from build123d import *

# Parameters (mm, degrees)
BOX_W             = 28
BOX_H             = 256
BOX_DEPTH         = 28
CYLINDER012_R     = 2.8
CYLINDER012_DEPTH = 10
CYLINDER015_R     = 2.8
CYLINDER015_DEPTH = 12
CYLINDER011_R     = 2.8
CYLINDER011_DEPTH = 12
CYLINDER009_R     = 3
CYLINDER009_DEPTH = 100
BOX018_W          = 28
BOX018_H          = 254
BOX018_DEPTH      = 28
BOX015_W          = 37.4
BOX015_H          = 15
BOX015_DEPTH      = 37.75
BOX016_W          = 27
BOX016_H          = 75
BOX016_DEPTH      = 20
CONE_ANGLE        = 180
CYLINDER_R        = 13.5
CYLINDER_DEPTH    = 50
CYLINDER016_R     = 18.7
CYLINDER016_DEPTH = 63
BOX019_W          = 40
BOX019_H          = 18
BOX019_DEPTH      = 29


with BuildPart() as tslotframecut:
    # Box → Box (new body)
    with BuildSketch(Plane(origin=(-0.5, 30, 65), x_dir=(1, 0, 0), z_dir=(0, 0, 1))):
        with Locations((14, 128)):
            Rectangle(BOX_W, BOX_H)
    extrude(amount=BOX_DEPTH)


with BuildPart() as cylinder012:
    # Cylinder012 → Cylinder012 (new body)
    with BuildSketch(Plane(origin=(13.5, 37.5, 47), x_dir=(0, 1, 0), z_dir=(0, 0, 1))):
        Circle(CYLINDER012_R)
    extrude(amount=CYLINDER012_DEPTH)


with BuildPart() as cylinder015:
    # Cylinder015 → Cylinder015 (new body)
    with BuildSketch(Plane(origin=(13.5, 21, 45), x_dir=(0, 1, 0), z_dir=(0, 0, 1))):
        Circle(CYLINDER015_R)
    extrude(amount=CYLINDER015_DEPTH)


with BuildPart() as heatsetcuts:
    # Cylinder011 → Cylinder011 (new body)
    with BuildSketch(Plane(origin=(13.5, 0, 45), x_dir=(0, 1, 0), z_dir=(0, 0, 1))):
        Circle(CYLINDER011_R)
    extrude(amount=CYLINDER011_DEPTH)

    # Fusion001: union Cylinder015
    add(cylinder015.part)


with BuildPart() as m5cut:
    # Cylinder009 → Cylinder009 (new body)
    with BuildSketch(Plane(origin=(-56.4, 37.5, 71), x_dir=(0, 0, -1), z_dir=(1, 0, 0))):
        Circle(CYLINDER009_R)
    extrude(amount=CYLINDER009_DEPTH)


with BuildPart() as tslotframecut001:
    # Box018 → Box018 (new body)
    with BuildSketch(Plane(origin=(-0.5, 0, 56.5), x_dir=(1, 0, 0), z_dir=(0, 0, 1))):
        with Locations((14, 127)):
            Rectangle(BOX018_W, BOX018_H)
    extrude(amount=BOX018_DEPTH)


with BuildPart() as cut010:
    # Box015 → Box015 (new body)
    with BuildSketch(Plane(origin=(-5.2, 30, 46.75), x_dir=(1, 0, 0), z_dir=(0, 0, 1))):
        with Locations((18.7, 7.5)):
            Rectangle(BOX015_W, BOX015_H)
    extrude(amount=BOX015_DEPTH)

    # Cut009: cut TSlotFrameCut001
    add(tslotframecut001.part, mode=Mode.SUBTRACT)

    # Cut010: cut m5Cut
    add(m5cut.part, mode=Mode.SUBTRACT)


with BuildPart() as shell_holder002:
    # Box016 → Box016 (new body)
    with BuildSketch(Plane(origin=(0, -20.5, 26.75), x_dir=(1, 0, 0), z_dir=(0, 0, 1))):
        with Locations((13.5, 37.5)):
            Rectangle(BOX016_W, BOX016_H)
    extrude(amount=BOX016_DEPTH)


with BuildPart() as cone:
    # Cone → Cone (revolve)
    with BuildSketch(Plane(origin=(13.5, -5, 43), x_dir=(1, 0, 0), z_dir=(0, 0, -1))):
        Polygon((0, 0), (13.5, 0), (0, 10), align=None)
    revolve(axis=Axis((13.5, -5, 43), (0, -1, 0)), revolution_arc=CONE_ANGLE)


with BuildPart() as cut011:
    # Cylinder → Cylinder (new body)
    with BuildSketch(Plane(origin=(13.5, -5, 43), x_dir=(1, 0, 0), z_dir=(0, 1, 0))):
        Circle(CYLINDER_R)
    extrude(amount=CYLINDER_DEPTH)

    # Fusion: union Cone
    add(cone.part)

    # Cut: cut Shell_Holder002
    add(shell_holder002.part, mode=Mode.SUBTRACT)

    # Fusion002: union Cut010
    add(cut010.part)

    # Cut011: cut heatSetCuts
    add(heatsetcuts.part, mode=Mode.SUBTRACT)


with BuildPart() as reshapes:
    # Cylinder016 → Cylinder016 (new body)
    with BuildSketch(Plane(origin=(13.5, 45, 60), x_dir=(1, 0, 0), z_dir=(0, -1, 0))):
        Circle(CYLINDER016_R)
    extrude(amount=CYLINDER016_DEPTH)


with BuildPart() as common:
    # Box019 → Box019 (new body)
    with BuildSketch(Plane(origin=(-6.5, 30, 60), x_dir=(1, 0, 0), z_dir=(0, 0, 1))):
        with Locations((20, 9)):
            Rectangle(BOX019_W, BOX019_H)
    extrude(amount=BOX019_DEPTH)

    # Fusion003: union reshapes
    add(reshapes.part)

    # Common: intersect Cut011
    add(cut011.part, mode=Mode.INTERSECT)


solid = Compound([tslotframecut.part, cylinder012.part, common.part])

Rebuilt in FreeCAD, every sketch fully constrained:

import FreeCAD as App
import Part
import Sketcher

V = App.Vector

doc = App.newDocument("Part")
params = doc.addObject("Spreadsheet::Sheet", "Params")
for row, (alias, value) in enumerate([
    ("sketch1_width", "28 mm"),
    ("sketch1_height", "256 mm"),
    ("pad1_length", "28 mm"),
    ("sketch2_diameter", "5.6 mm"),
    ("pad2_length", "10 mm"),
    ("sketch3_diameter", "5.6 mm"),
    ("pad3_length", "12 mm"),
    ("sketch4_diameter", "5.6 mm"),
    ("pad4_length", "12 mm"),
    ("sketch5_diameter", "6 mm"),
    ("pad5_length", "100 mm"),
    ("sketch6_width", "28 mm"),
    ("sketch6_height", "254 mm"),
    ("pad6_length", "28 mm"),
    ("sketch7_height", "15 mm"),
    ("sketch7_width", "37.4 mm"),
    ("pad7_length", "37.75 mm"),
    ("sketch8_width", "27 mm"),
    ("sketch8_height", "75 mm"),
    ("pad8_length", "20 mm"),
    ("sketch9_height", "10 mm"),
    ("sketch9_width", "13.5 mm"),
    ("revolution_angle", "180 deg"),
    ("sketch10_diameter", "27 mm"),
    ("pad9_length", "50 mm"),
    ("sketch11_diameter", "37.4 mm"),
    ("pad10_length", "63 mm"),
    ("sketch12_width", "40 mm"),
    ("sketch12_height", "18 mm"),
    ("pad11_length", "29 mm"),
], start=1):
    params.set(f"A{row}", alias)
    params.set(f"B{row}", "=" + value)
    params.setAlias(f"B{row}", alias)

body = doc.addObject("PartDesign::Body", "Body")

# Sketch on XY plane
sketch1 = body.newObject("Sketcher::SketchObject", "Sketch")
sketch1.AttachmentSupport = (doc.getObject("XY_Plane"), [""])
sketch1.MapMode = "FlatFace"
sketch1.AttachmentOffset = App.Placement(V(0, 0, 65), App.Rotation())
sketch1.addGeometry(Part.LineSegment(V(-0.5, 286, 0), V(-0.5, 30, 0)), False)
sketch1.addGeometry(Part.LineSegment(V(-0.5, 30, 0), V(27.5, 30, 0)), False)
sketch1.addGeometry(Part.LineSegment(V(27.5, 30, 0), V(27.5, 286, 0)), False)
sketch1.addGeometry(Part.LineSegment(V(27.5, 286, 0), V(-0.5, 286, 0)), False)
sketch1.addConstraint(Sketcher.Constraint("Coincident", 0, 2, 1, 1))
sketch1.addConstraint(Sketcher.Constraint("Coincident", 1, 2, 2, 1))
sketch1.addConstraint(Sketcher.Constraint("Coincident", 2, 2, 3, 1))
sketch1.addConstraint(Sketcher.Constraint("Coincident", 3, 2, 0, 1))
sketch1.addConstraint(Sketcher.Constraint("Vertical", 0))
sketch1.addConstraint(Sketcher.Constraint("Horizontal", 1))
sketch1.addConstraint(Sketcher.Constraint("Vertical", 2))
sketch1.addConstraint(Sketcher.Constraint("Horizontal", 3))
sketch1.addConstraint(Sketcher.Constraint("DistanceX", 1, 1, 1, 2, 28.0))
sketch1.addConstraint(Sketcher.Constraint("DistanceY", 0, 2, 0, 1, 256.0))
sketch1.addConstraint(Sketcher.Constraint("DistanceY", -1, 1, 0, 2, 30.0))
sketch1.addConstraint(Sketcher.Constraint("DistanceX", 0, 2, -1, 1, 0.5))
sketch1.setExpression("Constraints[8]", "Params.sketch1_width")
sketch1.setExpression("Constraints[9]", "Params.sketch1_height")
pad1 = body.newObject("PartDesign::Pad", "Pad")
pad1.Profile = sketch1
pad1.setExpression("Length", "Params.pad1_length")
body2 = doc.addObject("PartDesign::Body", "Body001")

# Sketch on XY plane
sketch2 = body2.newObject("Sketcher::SketchObject", "Sketch001")
sketch2.AttachmentSupport = (doc.getObject("XY_Plane001"), [""])
sketch2.MapMode = "FlatFace"
sketch2.AttachmentOffset = App.Placement(V(0, 0, 47), App.Rotation())
sketch2.addGeometry(Part.Circle(V(13.5, 37.5, 0), V(0, 0, 1), 2.8), False)
sketch2.addConstraint(Sketcher.Constraint("Diameter", 0, 5.6))
sketch2.addConstraint(Sketcher.Constraint("DistanceX", -1, 1, 0, 3, 13.5))
sketch2.addConstraint(Sketcher.Constraint("DistanceY", -1, 1, 0, 3, 37.5))
sketch2.setExpression("Constraints[0]", "Params.sketch2_diameter")
pad2 = body2.newObject("PartDesign::Pad", "Pad001")
pad2.Profile = sketch2
pad2.setExpression("Length", "Params.pad2_length")
body3 = doc.addObject("PartDesign::Body", "Body002")

# Sketch on XY plane
sketch3 = body3.newObject("Sketcher::SketchObject", "Sketch002")
sketch3.AttachmentSupport = (doc.getObject("XY_Plane002"), [""])
sketch3.MapMode = "FlatFace"
sketch3.AttachmentOffset = App.Placement(V(0, 0, 45), App.Rotation())
sketch3.addGeometry(Part.Circle(V(13.5, 21, 0), V(0, 0, 1), 2.8), False)
sketch3.addConstraint(Sketcher.Constraint("Diameter", 0, 5.6))
sketch3.addConstraint(Sketcher.Constraint("DistanceY", -1, 1, 0, 3, 21.0))
sketch3.addConstraint(Sketcher.Constraint("DistanceX", -1, 1, 0, 3, 13.5))
sketch3.setExpression("Constraints[0]", "Params.sketch3_diameter")
pad3 = body3.newObject("PartDesign::Pad", "Pad002")
pad3.Profile = sketch3
pad3.setExpression("Length", "Params.pad3_length")
body4 = doc.addObject("PartDesign::Body", "Body003")
body4.AllowCompound = True

# Sketch on XY plane
sketch4 = body4.newObject("Sketcher::SketchObject", "Sketch003")
sketch4.AttachmentSupport = (doc.getObject("XY_Plane003"), [""])
sketch4.MapMode = "FlatFace"
sketch4.AttachmentOffset = App.Placement(V(0, 0, 45), App.Rotation())
sketch4.addGeometry(Part.Circle(V(13.5, 0, 0), V(0, 0, 1), 2.8), False)
sketch4.addConstraint(Sketcher.Constraint("PointOnObject", 0, 3, -1))
sketch4.addConstraint(Sketcher.Constraint("Diameter", 0, 5.6))
sketch4.addConstraint(Sketcher.Constraint("DistanceX", -1, 1, 0, 3, 13.5))
sketch4.setExpression("Constraints[1]", "Params.sketch4_diameter")
pad4 = body4.newObject("PartDesign::Pad", "Pad003")
pad4.Profile = sketch4
pad4.setExpression("Length", "Params.pad4_length")
doc.recompute()

boolean = body4.newObject("PartDesign::Boolean", "Boolean")
boolean.Type = "Fuse"
boolean.addObjects([body3])
body5 = doc.addObject("PartDesign::Body", "Body004")

# Sketch on YZ plane
sketch5 = body5.newObject("Sketcher::SketchObject", "Sketch004")
sketch5.AttachmentSupport = (doc.getObject("YZ_Plane004"), [""])
sketch5.MapMode = "FlatFace"
sketch5.AttachmentOffset = App.Placement(V(0, 0, -56.4), App.Rotation())
sketch5.addGeometry(Part.Circle(V(37.5, 71, 0), V(0, 0, 1), 3), False)
sketch5.addConstraint(Sketcher.Constraint("Diameter", 0, 6.0))
sketch5.addConstraint(Sketcher.Constraint("DistanceY", -1, 1, 0, 3, 71.0))
sketch5.addConstraint(Sketcher.Constraint("DistanceX", -1, 1, 0, 3, 37.5))
sketch5.setExpression("Constraints[0]", "Params.sketch5_diameter")
pad5 = body5.newObject("PartDesign::Pad", "Pad004")
pad5.Profile = sketch5
pad5.setExpression("Length", "Params.pad5_length")
body6 = doc.addObject("PartDesign::Body", "Body005")

# Sketch on XY plane
sketch6 = body6.newObject("Sketcher::SketchObject", "Sketch005")
sketch6.AttachmentSupport = (doc.getObject("XY_Plane005"), [""])
sketch6.MapMode = "FlatFace"
sketch6.AttachmentOffset = App.Placement(V(0, 0, 56.5), App.Rotation())
sketch6.addGeometry(Part.LineSegment(V(-0.5, 254, 0), V(-0.5, 0, 0)), False)
sketch6.addGeometry(Part.LineSegment(V(-0.5, 0, 0), V(27.5, 0, 0)), False)
sketch6.addGeometry(Part.LineSegment(V(27.5, 0, 0), V(27.5, 254, 0)), False)
sketch6.addGeometry(Part.LineSegment(V(27.5, 254, 0), V(-0.5, 254, 0)), False)
sketch6.addConstraint(Sketcher.Constraint("Coincident", 0, 2, 1, 1))
sketch6.addConstraint(Sketcher.Constraint("Coincident", 1, 2, 2, 1))
sketch6.addConstraint(Sketcher.Constraint("Coincident", 2, 2, 3, 1))
sketch6.addConstraint(Sketcher.Constraint("Coincident", 3, 2, 0, 1))
sketch6.addConstraint(Sketcher.Constraint("Vertical", 0))
sketch6.addConstraint(Sketcher.Constraint("Horizontal", 1))
sketch6.addConstraint(Sketcher.Constraint("Vertical", 2))
sketch6.addConstraint(Sketcher.Constraint("Horizontal", 3))
sketch6.addConstraint(Sketcher.Constraint("PointOnObject", 0, 2, -1))
sketch6.addConstraint(Sketcher.Constraint("DistanceX", 1, 1, 1, 2, 28.0))
sketch6.addConstraint(Sketcher.Constraint("DistanceY", 0, 2, 0, 1, 254.0))
sketch6.addConstraint(Sketcher.Constraint("DistanceX", 0, 2, -1, 1, 0.5))
sketch6.setExpression("Constraints[9]", "Params.sketch6_width")
sketch6.setExpression("Constraints[10]", "Params.sketch6_height")
pad6 = body6.newObject("PartDesign::Pad", "Pad005")
pad6.Profile = sketch6
pad6.setExpression("Length", "Params.pad6_length")
body7 = doc.addObject("PartDesign::Body", "Body006")

# Sketch on XY plane
sketch7 = body7.newObject("Sketcher::SketchObject", "Sketch006")
sketch7.AttachmentSupport = (doc.getObject("XY_Plane006"), [""])
sketch7.MapMode = "FlatFace"
sketch7.AttachmentOffset = App.Placement(V(0, 0, 46.75), App.Rotation())
sketch7.addGeometry(Part.LineSegment(V(-5.2, 45, 0), V(-5.2, 30, 0)), False)
sketch7.addGeometry(Part.LineSegment(V(-5.2, 30, 0), V(32.2, 30, 0)), False)
sketch7.addGeometry(Part.LineSegment(V(32.2, 30, 0), V(32.2, 45, 0)), False)
sketch7.addGeometry(Part.LineSegment(V(32.2, 45, 0), V(-5.2, 45, 0)), False)
sketch7.addConstraint(Sketcher.Constraint("Coincident", 0, 2, 1, 1))
sketch7.addConstraint(Sketcher.Constraint("Coincident", 1, 2, 2, 1))
sketch7.addConstraint(Sketcher.Constraint("Coincident", 2, 2, 3, 1))
sketch7.addConstraint(Sketcher.Constraint("Coincident", 3, 2, 0, 1))
sketch7.addConstraint(Sketcher.Constraint("Vertical", 0))
sketch7.addConstraint(Sketcher.Constraint("Horizontal", 1))
sketch7.addConstraint(Sketcher.Constraint("Vertical", 2))
sketch7.addConstraint(Sketcher.Constraint("Horizontal", 3))
sketch7.addConstraint(Sketcher.Constraint("DistanceY", 0, 2, 0, 1, 15.0))
sketch7.addConstraint(Sketcher.Constraint("DistanceX", 1, 1, 1, 2, 37.4))
sketch7.addConstraint(Sketcher.Constraint("DistanceY", -1, 1, 0, 2, 30.0))
sketch7.addConstraint(Sketcher.Constraint("DistanceX", 0, 2, -1, 1, 5.2))
sketch7.setExpression("Constraints[8]", "Params.sketch7_height")
sketch7.setExpression("Constraints[9]", "Params.sketch7_width")
pad7 = body7.newObject("PartDesign::Pad", "Pad006")
pad7.Profile = sketch7
pad7.setExpression("Length", "Params.pad7_length")
doc.recompute()

boolean2 = body7.newObject("PartDesign::Boolean", "Boolean001")
boolean2.Type = "Cut"
boolean2.addObjects([body6])
doc.recompute()

boolean3 = body7.newObject("PartDesign::Boolean", "Boolean002")
boolean3.Type = "Cut"
boolean3.addObjects([body5])
body8 = doc.addObject("PartDesign::Body", "Body007")

# Sketch on XY plane
sketch8 = body8.newObject("Sketcher::SketchObject", "Sketch007")
sketch8.AttachmentSupport = (doc.getObject("XY_Plane007"), [""])
sketch8.MapMode = "FlatFace"
sketch8.AttachmentOffset = App.Placement(V(0, 0, 26.75), App.Rotation())
sketch8.addGeometry(Part.LineSegment(V(0, 54.5, 0), V(0, -20.5, 0)), False)
sketch8.addGeometry(Part.LineSegment(V(0, -20.5, 0), V(27, -20.5, 0)), False)
sketch8.addGeometry(Part.LineSegment(V(27, -20.5, 0), V(27, 54.5, 0)), False)
sketch8.addGeometry(Part.LineSegment(V(27, 54.5, 0), V(0, 54.5, 0)), False)
sketch8.addConstraint(Sketcher.Constraint("Coincident", 0, 2, 1, 1))
sketch8.addConstraint(Sketcher.Constraint("Coincident", 1, 2, 2, 1))
sketch8.addConstraint(Sketcher.Constraint("Coincident", 2, 2, 3, 1))
sketch8.addConstraint(Sketcher.Constraint("Coincident", 3, 2, 0, 1))
sketch8.addConstraint(Sketcher.Constraint("Vertical", 0))
sketch8.addConstraint(Sketcher.Constraint("Horizontal", 1))
sketch8.addConstraint(Sketcher.Constraint("Vertical", 2))
sketch8.addConstraint(Sketcher.Constraint("Horizontal", 3))
sketch8.addConstraint(Sketcher.Constraint("PointOnObject", 0, 2, -2))
sketch8.addConstraint(Sketcher.Constraint("DistanceX", 1, 1, 1, 2, 27.0))
sketch8.addConstraint(Sketcher.Constraint("DistanceY", 0, 2, 0, 1, 75.0))
sketch8.addConstraint(Sketcher.Constraint("DistanceY", 0, 2, -1, 1, 20.5))
sketch8.setExpression("Constraints[9]", "Params.sketch8_width")
sketch8.setExpression("Constraints[10]", "Params.sketch8_height")
pad8 = body8.newObject("PartDesign::Pad", "Pad007")
pad8.Profile = sketch8
pad8.setExpression("Length", "Params.pad8_length")
body9 = doc.addObject("PartDesign::Body", "Body008")

# Sketch on XY plane
sketch9 = body9.newObject("Sketcher::SketchObject", "Sketch008")
sketch9.AttachmentSupport = (doc.getObject("XY_Plane008"), [""])
sketch9.MapMode = "FlatFace"
sketch9.AttachmentOffset = App.Placement(V(0, 0, 43), App.Rotation())
sketch9.addGeometry(Part.LineSegment(V(13.5, -5, 0), V(27, -5, 0)), False)
sketch9.addGeometry(Part.LineSegment(V(27, -5, 0), V(13.5, -15, 0)), False)
sketch9.addGeometry(Part.LineSegment(V(13.5, -15, 0), V(13.5, -5, 0)), False)
sketch9.addGeometry(Part.LineSegment(V(13.5, -5, 0), V(13.5, -15, 0)), True)  # axis
sketch9.addConstraint(Sketcher.Constraint("Coincident", 0, 2, 1, 1))
sketch9.addConstraint(Sketcher.Constraint("Coincident", 1, 2, 2, 1))
sketch9.addConstraint(Sketcher.Constraint("Coincident", 2, 2, 0, 1))
sketch9.addConstraint(Sketcher.Constraint("Horizontal", 0))
sketch9.addConstraint(Sketcher.Constraint("Vertical", 2))
sketch9.addConstraint(Sketcher.Constraint("Vertical", 3))
sketch9.addConstraint(Sketcher.Constraint("Coincident", 3, 1, 2, 2))
sketch9.addConstraint(Sketcher.Constraint("Equal", 2, 3))
sketch9.addConstraint(Sketcher.Constraint("DistanceY", 2, 1, 2, 2, 10.0))
sketch9.addConstraint(Sketcher.Constraint("DistanceX", 0, 1, 0, 2, 13.5))
sketch9.addConstraint(Sketcher.Constraint("DistanceX", -1, 1, 0, 2, 27.0))
sketch9.addConstraint(Sketcher.Constraint("DistanceY", 0, 2, -1, 1, 5.0))
sketch9.setExpression("Constraints[8]", "Params.sketch9_height")
sketch9.setExpression("Constraints[9]", "Params.sketch9_width")
revolution = body9.newObject("PartDesign::Revolution", "Revolution")
revolution.Profile = sketch9
revolution.ReferenceAxis = (sketch9, ["Axis0"])
revolution.setExpression("Angle", "Params.revolution_angle")
body10 = doc.addObject("PartDesign::Body", "Body009")

# Sketch on XZ plane
sketch10 = body10.newObject("Sketcher::SketchObject", "Sketch009")
sketch10.AttachmentSupport = (doc.getObject("XZ_Plane009"), [""])
sketch10.MapMode = "FlatFace"
sketch10.AttachmentOffset = App.Placement(V(0, 0, 5), App.Rotation())
sketch10.addGeometry(Part.Circle(V(13.5, 43, 0), V(0, 0, 1), 13.5), False)
sketch10.addConstraint(Sketcher.Constraint("Diameter", 0, 27.0))
sketch10.addConstraint(Sketcher.Constraint("DistanceY", -1, 1, 0, 3, 43.0))
sketch10.addConstraint(Sketcher.Constraint("DistanceX", -1, 1, 0, 3, 13.5))
sketch10.setExpression("Constraints[0]", "Params.sketch10_diameter")
pad9 = body10.newObject("PartDesign::Pad", "Pad008")
pad9.Profile = sketch10
pad9.setExpression("Length", "Params.pad9_length")
pad9.Reversed = True
doc.recompute()

boolean4 = body10.newObject("PartDesign::Boolean", "Boolean003")
boolean4.Type = "Fuse"
boolean4.addObjects([body9])
doc.recompute()

boolean5 = body10.newObject("PartDesign::Boolean", "Boolean004")
boolean5.Type = "Cut"
boolean5.addObjects([body8])
doc.recompute()

boolean6 = body10.newObject("PartDesign::Boolean", "Boolean005")
boolean6.Type = "Fuse"
boolean6.addObjects([body7])
doc.recompute()

boolean7 = body10.newObject("PartDesign::Boolean", "Boolean006")
boolean7.Type = "Cut"
boolean7.addObjects([body4])
body11 = doc.addObject("PartDesign::Body", "Body010")

# Sketch on XZ plane
sketch11 = body11.newObject("Sketcher::SketchObject", "Sketch010")
sketch11.AttachmentSupport = (doc.getObject("XZ_Plane010"), [""])
sketch11.MapMode = "FlatFace"
sketch11.AttachmentOffset = App.Placement(V(0, 0, -45), App.Rotation())
sketch11.addGeometry(Part.Circle(V(13.5, 60, 0), V(0, 0, 1), 18.7), False)
sketch11.addConstraint(Sketcher.Constraint("Diameter", 0, 37.4))
sketch11.addConstraint(Sketcher.Constraint("DistanceY", -1, 1, 0, 3, 60.0))
sketch11.addConstraint(Sketcher.Constraint("DistanceX", -1, 1, 0, 3, 13.5))
sketch11.setExpression("Constraints[0]", "Params.sketch11_diameter")
pad10 = body11.newObject("PartDesign::Pad", "Pad009")
pad10.Profile = sketch11
pad10.setExpression("Length", "Params.pad10_length")
body12 = doc.addObject("PartDesign::Body", "Body011")

# Sketch on XY plane
sketch12 = body12.newObject("Sketcher::SketchObject", "Sketch011")
sketch12.AttachmentSupport = (doc.getObject("XY_Plane011"), [""])
sketch12.MapMode = "FlatFace"
sketch12.AttachmentOffset = App.Placement(V(0, 0, 60), App.Rotation())
sketch12.addGeometry(Part.LineSegment(V(-6.5, 48, 0), V(-6.5, 30, 0)), False)
sketch12.addGeometry(Part.LineSegment(V(-6.5, 30, 0), V(33.5, 30, 0)), False)
sketch12.addGeometry(Part.LineSegment(V(33.5, 30, 0), V(33.5, 48, 0)), False)
sketch12.addGeometry(Part.LineSegment(V(33.5, 48, 0), V(-6.5, 48, 0)), False)
sketch12.addConstraint(Sketcher.Constraint("Coincident", 0, 2, 1, 1))
sketch12.addConstraint(Sketcher.Constraint("Coincident", 1, 2, 2, 1))
sketch12.addConstraint(Sketcher.Constraint("Coincident", 2, 2, 3, 1))
sketch12.addConstraint(Sketcher.Constraint("Coincident", 3, 2, 0, 1))
sketch12.addConstraint(Sketcher.Constraint("Vertical", 0))
sketch12.addConstraint(Sketcher.Constraint("Horizontal", 1))
sketch12.addConstraint(Sketcher.Constraint("Vertical", 2))
sketch12.addConstraint(Sketcher.Constraint("Horizontal", 3))
sketch12.addConstraint(Sketcher.Constraint("DistanceX", 1, 1, 1, 2, 40.0))
sketch12.addConstraint(Sketcher.Constraint("DistanceY", 0, 2, 0, 1, 18.0))
sketch12.addConstraint(Sketcher.Constraint("DistanceY", -1, 1, 0, 2, 30.0))
sketch12.addConstraint(Sketcher.Constraint("DistanceX", 0, 2, -1, 1, 6.5))
sketch12.setExpression("Constraints[8]", "Params.sketch12_width")
sketch12.setExpression("Constraints[9]", "Params.sketch12_height")
pad11 = body12.newObject("PartDesign::Pad", "Pad010")
pad11.Profile = sketch12
pad11.setExpression("Length", "Params.pad11_length")
doc.recompute()

boolean8 = body12.newObject("PartDesign::Boolean", "Boolean007")
boolean8.Type = "Fuse"
boolean8.addObjects([body11])
doc.recompute()

boolean9 = body12.newObject("PartDesign::Boolean", "Boolean008")
boolean9.Type = "Common"
boolean9.addObjects([body10])

doc.recompute()
